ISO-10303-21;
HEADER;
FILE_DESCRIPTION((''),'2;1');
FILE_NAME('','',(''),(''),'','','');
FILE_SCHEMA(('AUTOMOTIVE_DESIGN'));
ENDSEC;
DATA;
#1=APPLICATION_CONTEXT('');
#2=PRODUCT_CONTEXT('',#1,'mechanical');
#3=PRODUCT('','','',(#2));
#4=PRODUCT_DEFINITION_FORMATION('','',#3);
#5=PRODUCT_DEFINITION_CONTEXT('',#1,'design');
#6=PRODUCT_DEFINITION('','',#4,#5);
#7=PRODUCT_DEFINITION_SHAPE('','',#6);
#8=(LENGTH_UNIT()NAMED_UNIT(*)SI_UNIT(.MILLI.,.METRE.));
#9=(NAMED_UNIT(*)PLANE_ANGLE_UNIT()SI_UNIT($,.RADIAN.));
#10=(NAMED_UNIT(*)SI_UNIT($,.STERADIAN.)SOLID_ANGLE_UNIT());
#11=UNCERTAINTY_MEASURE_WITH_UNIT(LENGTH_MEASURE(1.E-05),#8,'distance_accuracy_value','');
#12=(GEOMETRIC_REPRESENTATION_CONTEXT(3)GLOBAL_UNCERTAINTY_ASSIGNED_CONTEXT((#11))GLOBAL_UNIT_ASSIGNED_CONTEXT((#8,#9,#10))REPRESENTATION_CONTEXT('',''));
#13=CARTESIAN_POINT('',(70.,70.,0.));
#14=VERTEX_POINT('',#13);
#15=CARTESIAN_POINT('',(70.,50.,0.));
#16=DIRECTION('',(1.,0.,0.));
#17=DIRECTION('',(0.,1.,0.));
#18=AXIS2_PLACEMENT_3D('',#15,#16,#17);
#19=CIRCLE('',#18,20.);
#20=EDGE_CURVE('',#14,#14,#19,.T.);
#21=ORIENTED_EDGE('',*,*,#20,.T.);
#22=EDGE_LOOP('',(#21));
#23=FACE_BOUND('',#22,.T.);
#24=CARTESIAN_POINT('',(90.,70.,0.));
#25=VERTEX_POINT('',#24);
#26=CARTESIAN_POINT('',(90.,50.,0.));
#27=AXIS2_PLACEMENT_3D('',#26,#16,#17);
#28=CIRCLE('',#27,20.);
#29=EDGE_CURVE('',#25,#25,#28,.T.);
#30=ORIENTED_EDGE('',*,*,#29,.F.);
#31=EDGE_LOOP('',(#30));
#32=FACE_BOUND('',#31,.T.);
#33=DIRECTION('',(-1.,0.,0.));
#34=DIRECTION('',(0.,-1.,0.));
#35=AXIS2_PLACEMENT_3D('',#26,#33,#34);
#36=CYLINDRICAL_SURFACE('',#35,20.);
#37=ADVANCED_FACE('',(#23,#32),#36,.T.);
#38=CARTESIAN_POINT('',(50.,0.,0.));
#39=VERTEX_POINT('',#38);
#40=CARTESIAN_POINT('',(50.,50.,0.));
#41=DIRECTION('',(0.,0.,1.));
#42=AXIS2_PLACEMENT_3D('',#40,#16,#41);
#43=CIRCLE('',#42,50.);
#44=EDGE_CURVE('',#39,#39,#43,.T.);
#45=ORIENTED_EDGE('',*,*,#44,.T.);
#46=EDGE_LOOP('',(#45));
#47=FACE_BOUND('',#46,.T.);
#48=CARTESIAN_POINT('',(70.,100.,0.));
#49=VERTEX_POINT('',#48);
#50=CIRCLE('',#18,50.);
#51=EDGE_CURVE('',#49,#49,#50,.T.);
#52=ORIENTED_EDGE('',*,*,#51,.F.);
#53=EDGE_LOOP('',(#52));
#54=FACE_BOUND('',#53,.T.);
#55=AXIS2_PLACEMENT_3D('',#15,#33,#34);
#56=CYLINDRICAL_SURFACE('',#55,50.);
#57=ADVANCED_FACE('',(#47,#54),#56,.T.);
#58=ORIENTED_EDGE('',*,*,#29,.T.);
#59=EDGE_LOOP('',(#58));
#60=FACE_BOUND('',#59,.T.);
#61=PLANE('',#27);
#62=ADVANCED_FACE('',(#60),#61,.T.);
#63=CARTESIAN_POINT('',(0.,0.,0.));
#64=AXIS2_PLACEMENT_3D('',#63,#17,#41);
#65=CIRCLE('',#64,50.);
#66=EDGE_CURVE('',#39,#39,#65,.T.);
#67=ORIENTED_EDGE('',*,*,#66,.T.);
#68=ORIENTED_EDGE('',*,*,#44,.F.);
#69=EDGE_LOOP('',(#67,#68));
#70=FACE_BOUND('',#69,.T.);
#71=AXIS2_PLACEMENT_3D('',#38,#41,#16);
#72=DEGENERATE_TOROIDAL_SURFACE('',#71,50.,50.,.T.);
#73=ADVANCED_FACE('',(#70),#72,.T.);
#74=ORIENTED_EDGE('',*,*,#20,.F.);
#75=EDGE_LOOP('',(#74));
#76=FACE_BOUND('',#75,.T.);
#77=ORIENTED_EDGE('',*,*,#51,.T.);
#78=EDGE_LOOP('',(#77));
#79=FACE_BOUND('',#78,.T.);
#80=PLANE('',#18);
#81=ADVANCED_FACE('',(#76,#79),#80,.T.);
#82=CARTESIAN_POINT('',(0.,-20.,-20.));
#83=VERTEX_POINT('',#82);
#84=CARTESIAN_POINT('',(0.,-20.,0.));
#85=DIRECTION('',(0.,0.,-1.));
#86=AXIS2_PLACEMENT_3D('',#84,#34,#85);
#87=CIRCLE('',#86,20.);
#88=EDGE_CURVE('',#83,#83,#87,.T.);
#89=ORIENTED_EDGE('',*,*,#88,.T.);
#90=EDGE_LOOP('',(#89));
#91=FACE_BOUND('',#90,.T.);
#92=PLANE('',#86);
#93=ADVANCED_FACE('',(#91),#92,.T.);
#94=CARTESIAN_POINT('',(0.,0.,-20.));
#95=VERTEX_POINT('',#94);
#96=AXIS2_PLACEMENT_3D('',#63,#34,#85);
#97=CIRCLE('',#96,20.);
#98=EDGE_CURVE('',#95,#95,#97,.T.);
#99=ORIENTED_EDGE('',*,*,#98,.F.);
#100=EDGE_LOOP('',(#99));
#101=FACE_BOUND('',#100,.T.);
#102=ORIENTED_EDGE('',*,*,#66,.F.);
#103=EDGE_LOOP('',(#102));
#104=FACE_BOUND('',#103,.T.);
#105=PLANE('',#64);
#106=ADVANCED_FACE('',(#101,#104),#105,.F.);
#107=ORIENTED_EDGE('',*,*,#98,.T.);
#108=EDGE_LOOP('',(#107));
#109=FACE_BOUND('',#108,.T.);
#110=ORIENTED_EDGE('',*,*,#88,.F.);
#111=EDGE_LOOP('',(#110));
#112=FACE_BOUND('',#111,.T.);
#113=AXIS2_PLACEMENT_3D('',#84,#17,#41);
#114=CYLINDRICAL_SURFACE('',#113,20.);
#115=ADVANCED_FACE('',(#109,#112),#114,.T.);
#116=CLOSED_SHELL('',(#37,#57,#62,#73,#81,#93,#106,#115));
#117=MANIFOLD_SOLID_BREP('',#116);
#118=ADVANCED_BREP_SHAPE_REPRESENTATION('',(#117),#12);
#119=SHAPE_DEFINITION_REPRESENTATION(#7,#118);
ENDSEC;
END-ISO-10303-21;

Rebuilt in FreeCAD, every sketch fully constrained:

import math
import FreeCAD as App
import Part
import Sketcher

doc = App.newDocument("Part")
body = doc.addObject("PartDesign::Body", "Body")

# Sketch on XZ plane
sketch1 = doc.addObject("Sketcher::SketchObject", "Sketch")
body.addObject(sketch1)
sketch1.AttachmentSupport = (doc.XZ_Plane, [""])
sketch1.MapMode = "FlatFace"
sketch1.addGeometry(Part.Circle(App.Vector(0, 0, 0), App.Vector(0, 0, 1), 50), False)
sketch1.addConstraint(Sketcher.Constraint("Coincident", 0, 3, -1, 1))
sketch1.addConstraint(Sketcher.Constraint("Diameter", 0, 100.0))

# Sketch on XY plane
sketch2 = doc.addObject("Sketcher::SketchObject", "Sketch001")
body.addObject(sketch2)
sketch2.AttachmentSupport = (doc.XY_Plane, [""])
sketch2.MapMode = "FlatFace"
sketch2.addGeometry(Part.ArcOfCircle(Part.Circle(App.Vector(50, 0, 0), App.Vector(0, 0, 1), 50), math.radians(90), math.radians(180)), False)
sketch2.addConstraint(Sketcher.Constraint("Coincident", 0, 2, -1, 1))
sketch2.addConstraint(Sketcher.Constraint("PointOnObject", 0, 3, -1))
sketch2.addConstraint(Sketcher.Constraint("Radius", 0, 50.0))
sketch2.addConstraint(Sketcher.Constraint("DistanceX", -1, 1, 0, 1, 50.0))
doc.recompute()

additivepipe = doc.addObject("PartDesign::AdditivePipe", "AdditivePipe")
body.addObject(additivepipe)
additivepipe.Profile = sketch1
additivepipe.Spine = (sketch2, ["Edge1"])

# Sketch on XZ plane
sketch3 = doc.addObject("Sketcher::SketchObject", "Sketch002")
body.addObject(sketch3)
sketch3.AttachmentSupport = (doc.XZ_Plane, [""])
sketch3.MapMode = "FlatFace"
sketch3.addGeometry(Part.Circle(App.Vector(0, 0, 0), App.Vector(0, 0, 1), 20), False)
sketch3.addConstraint(Sketcher.Constraint("Coincident", 0, 3, -1, 1))
sketch3.addConstraint(Sketcher.Constraint("Diameter", 0, 40.0))
pad1 = doc.addObject("PartDesign::Pad", "Pad")
body.addObject(pad1)
pad1.Profile = sketch3
pad1.Length = 20

# Sketch on YZ plane
sketch4 = doc.addObject("Sketcher::SketchObject", "Sketch003")
body.addObject(sketch4)
sketch4.AttachmentSupport = (doc.YZ_Plane, [""])
sketch4.MapMode = "FlatFace"
sketch4.AttachmentOffset = App.Placement(App.Vector(0, 0, 50), App.Rotation())
sketch4.addGeometry(Part.Circle(App.Vector(50, 0, 0), App.Vector(0, 0, 1), 50), False)
sketch4.addConstraint(Sketcher.Constraint("PointOnObject", 0, 3, -1))
sketch4.addConstraint(Sketcher.Constraint("Diameter", 0, 100.0))
sketch4.addConstraint(Sketcher.Constraint("DistanceX", -1, 1, 0, 3, 50.0))
pad2 = doc.addObject("PartDesign::Pad", "Pad001")
body.addObject(pad2)
pad2.Profile = sketch4
pad2.Length = 20

# Sketch on YZ plane
sketch5 = doc.addObject("Sketcher::SketchObject", "Sketch004")
body.addObject(sketch5)
sketch5.AttachmentSupport = (doc.YZ_Plane, [""])
sketch5.MapMode = "FlatFace"
sketch5.AttachmentOffset = App.Placement(App.Vector(0, 0, 70), App.Rotation())
sketch5.addGeometry(Part.Circle(App.Vector(50, 0, 0), App.Vector(0, 0, 1), 20), False)
sketch5.addConstraint(Sketcher.Constraint("PointOnObject", 0, 3, -1))
sketch5.addConstraint(Sketcher.Constraint("Diameter", 0, 40.0))
sketch5.addConstraint(Sketcher.Constraint("DistanceX", -1, 1, 0, 3, 50.0))
pad3 = doc.addObject("PartDesign::Pad", "Pad002")
body.addObject(pad3)
pad3.Profile = sketch5
pad3.Length = 20

doc.recompute()
